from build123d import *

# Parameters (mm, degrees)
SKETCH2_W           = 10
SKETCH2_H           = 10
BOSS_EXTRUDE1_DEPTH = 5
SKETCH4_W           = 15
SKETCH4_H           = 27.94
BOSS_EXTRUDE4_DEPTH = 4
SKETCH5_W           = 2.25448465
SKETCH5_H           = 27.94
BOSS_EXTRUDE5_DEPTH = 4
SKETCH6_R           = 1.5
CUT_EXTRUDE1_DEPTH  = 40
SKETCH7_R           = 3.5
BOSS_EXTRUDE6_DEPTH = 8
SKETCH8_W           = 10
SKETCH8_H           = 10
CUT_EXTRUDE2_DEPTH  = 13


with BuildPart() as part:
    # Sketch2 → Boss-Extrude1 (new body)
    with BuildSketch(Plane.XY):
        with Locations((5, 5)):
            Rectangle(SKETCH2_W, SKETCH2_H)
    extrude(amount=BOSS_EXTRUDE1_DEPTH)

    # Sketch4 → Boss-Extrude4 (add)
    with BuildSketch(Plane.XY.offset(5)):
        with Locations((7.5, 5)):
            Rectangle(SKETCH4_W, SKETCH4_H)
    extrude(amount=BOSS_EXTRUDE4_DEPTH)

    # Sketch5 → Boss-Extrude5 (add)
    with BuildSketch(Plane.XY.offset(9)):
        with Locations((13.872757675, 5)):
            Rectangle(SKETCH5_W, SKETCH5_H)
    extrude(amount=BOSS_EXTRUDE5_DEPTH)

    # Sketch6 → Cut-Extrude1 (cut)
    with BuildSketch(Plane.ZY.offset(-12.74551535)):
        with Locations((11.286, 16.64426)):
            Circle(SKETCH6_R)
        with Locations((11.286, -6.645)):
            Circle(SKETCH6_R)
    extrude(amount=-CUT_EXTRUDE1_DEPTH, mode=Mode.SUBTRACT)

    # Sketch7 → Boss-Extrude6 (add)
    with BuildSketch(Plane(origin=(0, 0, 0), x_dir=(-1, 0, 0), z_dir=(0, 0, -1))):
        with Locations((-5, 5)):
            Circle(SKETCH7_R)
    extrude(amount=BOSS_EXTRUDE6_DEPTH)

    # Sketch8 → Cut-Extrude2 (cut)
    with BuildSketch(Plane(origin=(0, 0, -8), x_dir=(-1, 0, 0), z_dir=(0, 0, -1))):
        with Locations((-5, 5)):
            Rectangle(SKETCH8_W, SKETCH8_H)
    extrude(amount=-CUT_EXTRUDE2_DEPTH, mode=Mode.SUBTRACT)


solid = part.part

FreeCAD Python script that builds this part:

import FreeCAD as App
import Part
import Sketcher

doc = App.newDocument("Part")
body = doc.addObject("PartDesign::Body", "Body")

# Sketch on XY plane
sketch1 = body.newObject("Sketcher::SketchObject", "Sketch")
sketch1.AttachmentSupport = (doc.getObject("XY_Plane"), [""])
sketch1.MapMode = "FlatFace"
sketch1.addGeometry(Part.LineSegment(App.Vector(0, 10, 0), App.Vector(0, 0, 0)), False)
sketch1.addGeometry(Part.LineSegment(App.Vector(0, 0, 0), App.Vector(10, 0, 0)), False)
sketch1.addGeometry(Part.LineSegment(App.Vector(10, 0, 0), App.Vector(10, 10, 0)), False)
sketch1.addGeometry(Part.LineSegment(App.Vector(10, 10, 0), App.Vector(0, 10, 0)), False)
sketch1.addConstraint(Sketcher.Constraint("Coincident", 0, 2, 1, 1))
sketch1.addConstraint(Sketcher.Constraint("Coincident", 1, 2, 2, 1))
sketch1.addConstraint(Sketcher.Constraint("Coincident", 2, 2, 3, 1))
sketch1.addConstraint(Sketcher.Constraint("Coincident", 3, 2, 0, 1))
sketch1.addConstraint(Sketcher.Constraint("Vertical", 0))
sketch1.addConstraint(Sketcher.Constraint("Horizontal", 1))
sketch1.addConstraint(Sketcher.Constraint("Vertical", 2))
sketch1.addConstraint(Sketcher.Constraint("Horizontal", 3))
sketch1.addConstraint(Sketcher.Constraint("Coincident", 0, 2, -1, 1))
sketch1.addConstraint(Sketcher.Constraint("Equal", 3, 0))
sketch1.addConstraint(Sketcher.Constraint("DistanceX", 1, 1, 1, 2, 10.0))
pad1 = body.newObject("PartDesign::Pad", "Pad")
pad1.Profile = sketch1
pad1.Length = 5

# Sketch on XY plane
sketch2 = body.newObject("Sketcher::SketchObject", "Sketch001")
sketch2.AttachmentSupport = (doc.getObject("XY_Plane"), [""])
sketch2.MapMode = "FlatFace"
sketch2.AttachmentOffset = App.Placement(App.Vector(0, 0, 5), App.Rotation())
sketch2.addGeometry(Part.LineSegment(App.Vector(0, 19, 0), App.Vector(0, -9, 0)), False)
sketch2.addGeometry(Part.LineSegment(App.Vector(0, -9, 0), App.Vector(15, -9, 0)), False)
sketch2.addGeometry(Part.LineSegment(App.Vector(15, -9, 0), App.Vector(15, 19, 0)), False)
sketch2.addGeometry(Part.LineSegment(App.Vector(15, 19, 0), App.Vector(0, 19, 0)), False)
sketch2.addConstraint(Sketcher.Constraint("Coincident", 0, 2, 1, 1))
sketch2.addConstraint(Sketcher.Constraint("Coincident", 1, 2, 2, 1))
sketch2.addConstraint(Sketcher.Constraint("Coincident", 2, 2, 3, 1))
sketch2.addConstraint(Sketcher.Constraint("Coincident", 3, 2, 0, 1))
sketch2.addConstraint(Sketcher.Constraint("Vertical", 0))
sketch2.addConstraint(Sketcher.Constraint("Horizontal", 1))
sketch2.addConstraint(Sketcher.Constraint("Vertical", 2))
sketch2.addConstraint(Sketcher.Constraint("Horizontal", 3))
sketch2.addConstraint(Sketcher.Constraint("PointOnObject", 0, 2, -2))
sketch2.addConstraint(Sketcher.Constraint("DistanceX", 1, 1, 1, 2, 15.0))
sketch2.addConstraint(Sketcher.Constraint("DistanceY", 0, 2, 0, 1, 27.94))
sketch2.addConstraint(Sketcher.Constraint("DistanceY", 0, 2, -1, 1, 8.97))
pad2 = body.newObject("PartDesign::Pad", "Pad001")
pad2.Profile = sketch2
pad2.Length = 4

# Sketch on XY plane
sketch3 = body.newObject("Sketcher::SketchObject", "Sketch002")
sketch3.AttachmentSupport = (doc.getObject("XY_Plane"), [""])
sketch3.MapMode = "FlatFace"
sketch3.AttachmentOffset = App.Placement(App.Vector(0, 0, 9), App.Rotation())
sketch3.addGeometry(Part.LineSegment(App.Vector(12.7, 19, 0), App.Vector(12.7, -9, 0)), False)
sketch3.addGeometry(Part.LineSegment(App.Vector(12.7, -9, 0), App.Vector(15, -9, 0)), False)
sketch3.addGeometry(Part.LineSegment(App.Vector(15, -9, 0), App.Vector(15, 19, 0)), False)
sketch3.addGeometry(Part.LineSegment(App.Vector(15, 19, 0), App.Vector(12.7, 19, 0)), False)
sketch3.addConstraint(Sketcher.Constraint("Coincident", 0, 2, 1, 1))
sketch3.addConstraint(Sketcher.Constraint("Coincident", 1, 2, 2, 1))
sketch3.addConstraint(Sketcher.Constraint("Coincident", 2, 2, 3, 1))
sketch3.addConstraint(Sketcher.Constraint("Coincident", 3, 2, 0, 1))
sketch3.addConstraint(Sketcher.Constraint("Vertical", 0))
sketch3.addConstraint(Sketcher.Constraint("Horizontal", 1))
sketch3.addConstraint(Sketcher.Constraint("Vertical", 2))
sketch3.addConstraint(Sketcher.Constraint("Horizontal", 3))
sketch3.addConstraint(Sketcher.Constraint("DistanceX", -1, 1, 1, 2, 15.0))
sketch3.addConstraint(Sketcher.Constraint("DistanceY", 0, 2, 0, 1, 27.94))
sketch3.addConstraint(Sketcher.Constraint("DistanceY", 0, 2, -1, 1, 8.97))
sketch3.addConstraint(Sketcher.Constraint("DistanceX", 1, 1, 1, 2, 2.254485))
pad3 = body.newObject("PartDesign::Pad", "Pad002")
pad3.Profile = sketch3
pad3.Length = 4

# Sketch on YZ plane
sketch4 = body.newObject("Sketcher::SketchObject", "Sketch003")
sketch4.AttachmentSupport = (doc.getObject("YZ_Plane"), [""])
sketch4.MapMode = "FlatFace"
sketch4.AttachmentOffset = App.Placement(App.Vector(0, 0, 12.745515), App.Rotation())
sketch4.addGeometry(Part.Circle(App.Vector(16.6, 11.3, 0), App.Vector(0, 0, 1), 1.5), False)
sketch4.addGeometry(Part.Circle(App.Vector(-6.6, 11.3, 0), App.Vector(0, 0, 1), 1.5), False)
sketch4.addConstraint(Sketcher.Constraint("Equal", 0, 1))
sketch4.addConstraint(Sketcher.Constraint("Horizontal", 0, 3, 1, 3))
sketch4.addConstraint(Sketcher.Constraint("Diameter", 0, 3.0))
sketch4.addConstraint(Sketcher.Constraint("DistanceY", -1, 1, 0, 3, 11.286))
sketch4.addConstraint(Sketcher.Constraint("DistanceX", 1, 3, -1, 1, 6.645))
sketch4.addConstraint(Sketcher.Constraint("DistanceX", -1, 1, 0, 3, 16.64426))
pocket1 = body.newObject("PartDesign::Pocket", "Pocket")
pocket1.Profile = sketch4
pocket1.Length = 40
pocket1.Reversed = True

# Sketch on XY plane
sketch5 = body.newObject("Sketcher::SketchObject", "Sketch004")
sketch5.AttachmentSupport = (doc.getObject("XY_Plane"), [""])
sketch5.MapMode = "FlatFace"
sketch5.addGeometry(Part.Circle(App.Vector(5, 5, 0), App.Vector(0, 0, 1), 3.5), False)
sketch5.addConstraint(Sketcher.Constraint("Diameter", 0, 7.0))
sketch5.addConstraint(Sketcher.Constraint("DistanceX", -1, 1, 0, 3, 5.0))
sketch5.addConstraint(Sketcher.Constraint("DistanceY", -1, 1, 0, 3, 5.0))
pad4 = body.newObject("PartDesign::Pad", "Pad003")
pad4.Profile = sketch5
pad4.Length = 8
pad4.Reversed = True

# Sketch on XY plane
sketch6 = body.newObject("Sketcher::SketchObject", "Sketch005")
sketch6.AttachmentSupport = (doc.getObject("XY_Plane"), [""])
sketch6.MapMode = "FlatFace"
sketch6.AttachmentOffset = App.Placement(App.Vector(0, 0, -8), App.Rotation())
sketch6.addGeometry(Part.LineSegment(App.Vector(10, 10, 0), App.Vector(10, 0, 0)), False)
sketch6.addGeometry(Part.LineSegment(App.Vector(10, 0, 0), App.Vector(0, 0, 0)), False)
sketch6.addGeometry(Part.LineSegment(App.Vector(0, 0, 0), App.Vector(0, 10, 0)), False)
sketch6.addGeometry(Part.LineSegment(App.Vector(0, 10, 0), App.Vector(10, 10, 0)), False)
sketch6.addConstraint(Sketcher.Constraint("Coincident", 0, 2, 1, 1))
sketch6.addConstraint(Sketcher.Constraint("Coincident", 1, 2, 2, 1))
sketch6.addConstraint(Sketcher.Constraint("Coincident", 2, 2, 3, 1))
sketch6.addConstraint(Sketcher.Constraint("Coincident", 3, 2, 0, 1))
sketch6.addConstraint(Sketcher.Constraint("Vertical", 0))
sketch6.addConstraint(Sketcher.Constraint("Horizontal", 1))
sketch6.addConstraint(Sketcher.Constraint("Vertical", 2))
sketch6.addConstraint(Sketcher.Constraint("Horizontal", 3))
sketch6.addConstraint(Sketcher.Constraint("Coincident", 1, 2, -1, 1))
sketch6.addConstraint(Sketcher.Constraint("Equal", 3, 0))
sketch6.addConstraint(Sketcher.Constraint("DistanceX", 1, 2, 1, 1, 10.0))
pocket2 = body.newObject("PartDesign::Pocket", "Pocket001")
pocket2.Profile = sketch6
pocket2.Length = 13
pocket2.Reversed = True

doc.recompute()
